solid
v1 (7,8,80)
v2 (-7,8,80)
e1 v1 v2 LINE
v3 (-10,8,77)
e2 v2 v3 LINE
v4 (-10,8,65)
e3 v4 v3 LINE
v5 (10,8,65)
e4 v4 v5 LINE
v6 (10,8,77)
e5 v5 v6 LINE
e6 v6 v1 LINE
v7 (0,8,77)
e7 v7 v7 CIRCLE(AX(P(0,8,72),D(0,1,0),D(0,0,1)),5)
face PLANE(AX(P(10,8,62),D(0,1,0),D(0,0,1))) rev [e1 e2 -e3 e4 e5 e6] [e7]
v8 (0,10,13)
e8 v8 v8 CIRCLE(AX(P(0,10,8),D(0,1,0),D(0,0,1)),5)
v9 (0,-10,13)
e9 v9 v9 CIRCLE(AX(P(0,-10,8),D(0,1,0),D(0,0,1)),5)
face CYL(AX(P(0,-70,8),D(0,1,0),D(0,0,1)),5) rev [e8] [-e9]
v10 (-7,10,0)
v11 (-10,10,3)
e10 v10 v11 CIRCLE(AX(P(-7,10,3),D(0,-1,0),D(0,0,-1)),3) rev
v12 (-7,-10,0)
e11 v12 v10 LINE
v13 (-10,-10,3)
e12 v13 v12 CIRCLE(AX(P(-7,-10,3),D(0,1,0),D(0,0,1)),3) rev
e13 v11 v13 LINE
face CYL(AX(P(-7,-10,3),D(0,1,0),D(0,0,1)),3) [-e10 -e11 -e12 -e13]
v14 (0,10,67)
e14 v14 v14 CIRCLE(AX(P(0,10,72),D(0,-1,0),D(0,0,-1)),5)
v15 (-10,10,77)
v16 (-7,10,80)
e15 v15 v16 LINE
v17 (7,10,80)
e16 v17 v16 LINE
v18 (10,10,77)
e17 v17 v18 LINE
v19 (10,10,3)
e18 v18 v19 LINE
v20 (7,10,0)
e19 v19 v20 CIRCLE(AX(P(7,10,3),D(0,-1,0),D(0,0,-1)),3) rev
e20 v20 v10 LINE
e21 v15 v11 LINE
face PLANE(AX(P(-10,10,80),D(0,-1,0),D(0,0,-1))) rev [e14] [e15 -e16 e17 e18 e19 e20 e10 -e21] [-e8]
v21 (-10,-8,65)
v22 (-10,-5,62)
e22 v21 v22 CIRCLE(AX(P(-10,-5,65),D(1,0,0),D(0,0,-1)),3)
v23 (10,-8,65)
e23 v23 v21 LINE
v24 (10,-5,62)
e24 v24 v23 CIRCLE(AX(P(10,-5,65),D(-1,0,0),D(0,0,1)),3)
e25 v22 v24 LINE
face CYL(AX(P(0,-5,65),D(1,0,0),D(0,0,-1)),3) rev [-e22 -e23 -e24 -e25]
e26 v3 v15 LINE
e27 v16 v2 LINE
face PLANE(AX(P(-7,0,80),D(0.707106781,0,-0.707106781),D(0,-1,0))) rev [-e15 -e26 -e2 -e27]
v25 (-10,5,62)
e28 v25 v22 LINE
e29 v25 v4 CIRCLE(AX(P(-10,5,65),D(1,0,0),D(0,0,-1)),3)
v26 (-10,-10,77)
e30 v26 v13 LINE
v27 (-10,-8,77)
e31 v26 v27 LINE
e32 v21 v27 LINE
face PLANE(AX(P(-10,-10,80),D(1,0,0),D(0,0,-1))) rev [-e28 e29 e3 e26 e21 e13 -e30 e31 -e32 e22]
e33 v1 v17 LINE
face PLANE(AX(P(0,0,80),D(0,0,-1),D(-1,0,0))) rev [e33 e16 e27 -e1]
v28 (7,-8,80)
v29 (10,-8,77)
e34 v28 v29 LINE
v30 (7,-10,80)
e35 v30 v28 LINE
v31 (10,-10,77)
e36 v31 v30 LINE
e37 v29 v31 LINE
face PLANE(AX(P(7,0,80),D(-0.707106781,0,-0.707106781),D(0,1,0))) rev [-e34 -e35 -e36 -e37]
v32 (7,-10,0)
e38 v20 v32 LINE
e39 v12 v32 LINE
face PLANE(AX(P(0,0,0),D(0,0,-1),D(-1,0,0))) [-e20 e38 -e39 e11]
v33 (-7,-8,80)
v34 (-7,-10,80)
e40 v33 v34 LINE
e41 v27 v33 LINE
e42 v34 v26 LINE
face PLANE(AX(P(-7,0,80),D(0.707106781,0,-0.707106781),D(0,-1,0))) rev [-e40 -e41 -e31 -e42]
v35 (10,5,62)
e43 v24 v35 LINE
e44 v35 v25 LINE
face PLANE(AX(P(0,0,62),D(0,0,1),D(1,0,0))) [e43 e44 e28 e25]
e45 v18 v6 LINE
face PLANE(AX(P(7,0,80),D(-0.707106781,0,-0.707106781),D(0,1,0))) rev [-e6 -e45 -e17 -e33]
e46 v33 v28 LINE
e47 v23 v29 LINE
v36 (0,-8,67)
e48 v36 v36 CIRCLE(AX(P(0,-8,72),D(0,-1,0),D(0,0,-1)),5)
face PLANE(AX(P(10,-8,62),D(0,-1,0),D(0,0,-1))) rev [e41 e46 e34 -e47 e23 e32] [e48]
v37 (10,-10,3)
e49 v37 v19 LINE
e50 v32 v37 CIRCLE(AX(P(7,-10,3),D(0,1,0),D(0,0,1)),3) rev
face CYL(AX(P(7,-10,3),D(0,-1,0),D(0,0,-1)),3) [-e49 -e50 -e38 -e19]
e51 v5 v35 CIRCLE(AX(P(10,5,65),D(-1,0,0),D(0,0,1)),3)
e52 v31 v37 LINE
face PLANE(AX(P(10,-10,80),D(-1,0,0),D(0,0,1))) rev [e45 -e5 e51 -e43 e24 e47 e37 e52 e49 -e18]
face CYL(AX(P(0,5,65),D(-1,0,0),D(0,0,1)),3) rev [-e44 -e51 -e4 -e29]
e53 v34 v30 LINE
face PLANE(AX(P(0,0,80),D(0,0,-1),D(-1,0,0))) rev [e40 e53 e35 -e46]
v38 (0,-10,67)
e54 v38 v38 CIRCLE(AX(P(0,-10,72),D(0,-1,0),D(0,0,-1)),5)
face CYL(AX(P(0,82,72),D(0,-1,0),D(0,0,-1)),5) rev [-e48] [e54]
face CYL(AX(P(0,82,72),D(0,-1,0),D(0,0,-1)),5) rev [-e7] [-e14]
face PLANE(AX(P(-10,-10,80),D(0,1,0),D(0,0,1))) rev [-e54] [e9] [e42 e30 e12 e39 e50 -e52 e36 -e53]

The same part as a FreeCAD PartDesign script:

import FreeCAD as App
import Part
import Sketcher
Q = App.Units.Quantity


def edges_at(feature, points):
    """Names of the edges that pass closest to the given points."""
    edges = feature.Shape.Edges
    near = lambda p: min(range(len(edges)), key=lambda i: edges[i].distToShape(Part.Vertex(*p))[0])
    return sorted({f"Edge{near(p) + 1}" for p in points})


def add_polygon(sketch, points):
    """Adds a closed chain of lines whose ends are joined by coincident constraints."""
    first, n = sketch.GeometryCount, len(points)
    for a, b in zip(points, points[1:] + points[:1]):
        sketch.addGeometry(Part.LineSegment(App.Vector(*a, 0), App.Vector(*b, 0)), False)
    for i in range(n):
        sketch.addConstraint(Sketcher.Constraint("Coincident", first + i, 2, first + (i + 1) % n, 1))

doc = App.newDocument("Part")
params = doc.addObject("Spreadsheet::Sheet", "Params")
for row, (alias, value) in enumerate([
    ("sketch1_width", "20 mm"),
    ("pad1_length", "80 mm"),
    ("sketch2_diameter", "10 mm"),
    ("pocket1_length", "80 mm"),
    ("sketch3_width", "20 mm"),
    ("sketch3_height", "16 mm"),
    ("pocket2_length", "18 mm"),
    ("sketch4_diameter", "10 mm"),
    ("pocket3_length", "92 mm"),
    ("fillet_radius", "3 mm"),
    ("chamfer_size", "3 mm"),
], start=1):
    params.set(f"A{row}", alias)
    params.set(f"B{row}", "=" + value)
    params.setAlias(f"B{row}", alias)

body = doc.addObject("PartDesign::Body", "Body")

sketch1 = body.newObject("Sketcher::SketchObject", "Sketch")
sketch1.AttachmentSupport = (doc.getObject("XY_Plane"), [""])
sketch1.MapMode = "FlatFace"
add_polygon(sketch1, [(-10, 10), (-10, -10), (10, -10), (10, 10)])
sketch1.addConstraint([
    Sketcher.Constraint("Vertical", 0),
    Sketcher.Constraint("Horizontal", 1),
    Sketcher.Constraint("Vertical", 2),
    Sketcher.Constraint("Horizontal", 3),
    Sketcher.Constraint("Symmetric", 0, 2, 2, 2, -1, 1),
    Sketcher.Constraint("Equal", 3, 0),
    Sketcher.Constraint("DistanceX", 1, 1, 1, 2, Q("20 mm")),
])
sketch1.setExpression("Constraints[10]", "Params.sketch1_width")
pad1 = body.newObject("PartDesign::Pad", "Pad")
pad1.Profile = sketch1
pad1.setExpression("Length", "Params.pad1_length")

sketch2 = body.newObject("Sketcher::SketchObject", "Sketch001")
sketch2.AttachmentSupport = (doc.getObject("XZ_Plane"), [""])
sketch2.MapMode = "FlatFace"
sketch2.AttachmentOffset = App.Placement(App.Vector(0, 0, -10), App.Rotation())
sketch2.addGeometry(Part.Circle(App.Vector(0, 8, 0), App.Vector(0, 0, 1), 5), False)
sketch2.addConstraint([
    Sketcher.Constraint("PointOnObject", 0, 3, -2),
    Sketcher.Constraint("Diameter", 0, Q("10 mm")),
    Sketcher.Constraint("DistanceY", -1, 1, 0, 3, Q("8 mm")),
])
sketch2.setExpression("Constraints[1]", "Params.sketch2_diameter")
pocket1 = body.newObject("PartDesign::Pocket", "Pocket")
pocket1.Profile = sketch2
pocket1.setExpression("Length", "Params.pocket1_length")
pocket1.Reversed = True

sketch3 = body.newObject("Sketcher::SketchObject", "Sketch002")
sketch3.AttachmentSupport = (doc.getObject("XY_Plane"), [""])
sketch3.MapMode = "FlatFace"
sketch3.AttachmentOffset = App.Placement(App.Vector(0, 0, 80), App.Rotation())
add_polygon(sketch3, [(-10, 8), (-10, -8), (10, -8), (10, 8)])
sketch3.addConstraint([
    Sketcher.Constraint("Vertical", 0),
    Sketcher.Constraint("Horizontal", 1),
    Sketcher.Constraint("Vertical", 2),
    Sketcher.Constraint("Horizontal", 3),
    Sketcher.Constraint("Symmetric", 0, 2, 2, 2, -1, 1),
    Sketcher.Constraint("DistanceX", 1, 1, 1, 2, Q("20 mm")),
    Sketcher.Constraint("DistanceY", 0, 2, 0, 1, Q("16 mm")),
])
sketch3.setExpression("Constraints[9]", "Params.sketch3_width")
sketch3.setExpression("Constraints[10]", "Params.sketch3_height")
pocket2 = body.newObject("PartDesign::Pocket", "Pocket001")
pocket2.Profile = sketch3
pocket2.setExpression("Length", "Params.pocket2_length")

sketch4 = body.newObject("Sketcher::SketchObject", "Sketch003")
sketch4.AttachmentSupport = (doc.getObject("XZ_Plane"), [""])
sketch4.MapMode = "FlatFace"
sketch4.AttachmentOffset = App.Placement(App.Vector(0, 0, 10), App.Rotation())
sketch4.addGeometry(Part.Circle(App.Vector(0, 72, 0), App.Vector(0, 0, 1), 5), False)
sketch4.addConstraint([
    Sketcher.Constraint("PointOnObject", 0, 3, -2),
    Sketcher.Constraint("Diameter", 0, Q("10 mm")),
    Sketcher.Constraint("DistanceY", -1, 1, 0, 3, Q("72 mm")),
])
sketch4.setExpression("Constraints[1]", "Params.sketch4_diameter")
pocket3 = body.newObject("PartDesign::Pocket", "Pocket002")
pocket3.Profile = sketch4
pocket3.setExpression("Length", "Params.pocket3_length")
doc.recompute()

fillet = body.newObject("PartDesign::Fillet", "Fillet")
fillet.Base = (pocket3, edges_at(pocket3, [
    (0, 8, 62),
    (0, -8, 62),
    (-10, 0, 0),
    (10, 0, 0),
]))
fillet.setExpression("Radius", "Params.fillet_radius")
doc.recompute()

chamfer = body.newObject("PartDesign::Chamfer", "Chamfer")
chamfer.Base = (fillet, edges_at(fillet, [
    (-10, 9, 80),
    (10, 9, 80),
    (-10, -9, 80),
    (10, -9, 80),
]))
chamfer.setExpression("Size", "Params.chamfer_size")

doc.recompute()
